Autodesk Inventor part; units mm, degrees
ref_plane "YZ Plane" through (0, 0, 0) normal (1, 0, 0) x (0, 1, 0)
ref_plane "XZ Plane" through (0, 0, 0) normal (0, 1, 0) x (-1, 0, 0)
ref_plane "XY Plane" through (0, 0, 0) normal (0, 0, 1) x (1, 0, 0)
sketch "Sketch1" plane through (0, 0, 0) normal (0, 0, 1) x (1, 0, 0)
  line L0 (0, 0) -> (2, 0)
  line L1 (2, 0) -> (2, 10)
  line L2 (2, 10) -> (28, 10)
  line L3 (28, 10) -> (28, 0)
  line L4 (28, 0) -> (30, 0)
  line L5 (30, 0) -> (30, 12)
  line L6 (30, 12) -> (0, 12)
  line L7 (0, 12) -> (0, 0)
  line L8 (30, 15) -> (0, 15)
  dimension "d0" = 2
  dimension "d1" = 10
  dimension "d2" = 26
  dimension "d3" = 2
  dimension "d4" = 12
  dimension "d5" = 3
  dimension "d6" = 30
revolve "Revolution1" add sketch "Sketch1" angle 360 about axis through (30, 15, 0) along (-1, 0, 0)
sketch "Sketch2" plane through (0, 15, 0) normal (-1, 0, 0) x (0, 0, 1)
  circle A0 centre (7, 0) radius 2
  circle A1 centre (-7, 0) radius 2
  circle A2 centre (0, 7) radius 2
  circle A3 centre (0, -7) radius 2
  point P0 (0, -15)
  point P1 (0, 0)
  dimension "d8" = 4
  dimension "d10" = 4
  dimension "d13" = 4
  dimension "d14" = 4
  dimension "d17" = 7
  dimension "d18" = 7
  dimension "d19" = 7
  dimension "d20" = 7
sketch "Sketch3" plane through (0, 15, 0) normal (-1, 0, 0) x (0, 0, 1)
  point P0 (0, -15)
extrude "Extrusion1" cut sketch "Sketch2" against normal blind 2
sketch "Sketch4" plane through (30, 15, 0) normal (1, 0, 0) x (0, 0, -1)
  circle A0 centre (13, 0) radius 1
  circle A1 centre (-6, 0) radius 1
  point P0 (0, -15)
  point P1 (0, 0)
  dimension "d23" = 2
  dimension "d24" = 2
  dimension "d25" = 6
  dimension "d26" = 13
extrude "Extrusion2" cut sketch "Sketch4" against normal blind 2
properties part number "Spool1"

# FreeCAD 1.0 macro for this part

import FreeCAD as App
import Part
import Sketcher

V = App.Vector
Q = App.Units.Quantity

doc = App.newDocument("Part")
body = doc.addObject("PartDesign::Body", "Body")

sketch1 = body.newObject("Sketcher::SketchObject", "Sketch")
sketch1.AttachmentSupport = (doc.getObject("XY_Plane"), [""])
sketch1.MapMode = "FlatFace"
sketch1.addGeometry(Part.LineSegment(V(0, 12, 0), V(0, 0, 0)), False)
sketch1.addGeometry(Part.LineSegment(V(0, 0, 0), V(2, 0, 0)), False)
sketch1.addGeometry(Part.LineSegment(V(2, 0, 0), V(2, 10, 0)), False)
sketch1.addGeometry(Part.LineSegment(V(2, 10, 0), V(28, 10, 0)), False)
sketch1.addGeometry(Part.LineSegment(V(28, 10, 0), V(28, 0, 0)), False)
sketch1.addGeometry(Part.LineSegment(V(28, 0, 0), V(30, 0, 0)), False)
sketch1.addGeometry(Part.LineSegment(V(30, 0, 0), V(30, 12, 0)), False)
sketch1.addGeometry(Part.LineSegment(V(30, 12, 0), V(0, 12, 0)), False)
sketch1.addGeometry(Part.LineSegment(V(30, 15, 0), V(0, 15, 0)), True)
sketch1.addConstraint(Sketcher.Constraint("Coincident", 0, 2, 1, 1))
sketch1.addConstraint(Sketcher.Constraint("Coincident", 1, 2, 2, 1))
sketch1.addConstraint(Sketcher.Constraint("Coincident", 2, 2, 3, 1))
sketch1.addConstraint(Sketcher.Constraint("Coincident", 3, 2, 4, 1))
sketch1.addConstraint(Sketcher.Constraint("Coincident", 4, 2, 5, 1))
sketch1.addConstraint(Sketcher.Constraint("Coincident", 5, 2, 6, 1))
sketch1.addConstraint(Sketcher.Constraint("Coincident", 6, 2, 7, 1))
sketch1.addConstraint(Sketcher.Constraint("Coincident", 7, 2, 0, 1))
sketch1.addConstraint(Sketcher.Constraint("Vertical", 0))
sketch1.addConstraint(Sketcher.Constraint("Horizontal", 1))
sketch1.addConstraint(Sketcher.Constraint("Vertical", 2))
sketch1.addConstraint(Sketcher.Constraint("Horizontal", 3))
sketch1.addConstraint(Sketcher.Constraint("Vertical", 4))
sketch1.addConstraint(Sketcher.Constraint("Horizontal", 5))
sketch1.addConstraint(Sketcher.Constraint("Vertical", 6))
sketch1.addConstraint(Sketcher.Constraint("Horizontal", 7))
sketch1.addConstraint(Sketcher.Constraint("Horizontal", 8))
sketch1.addConstraint(Sketcher.Constraint("Coincident", 0, 2, -1, 1))
sketch1.addConstraint(Sketcher.Constraint("PointOnObject", 4, 2, -1))
sketch1.addConstraint(Sketcher.Constraint("PointOnObject", 8, 2, -2))
sketch1.addConstraint(Sketcher.Constraint("Vertical", 6, 2, 8, 1))
sketch1.addConstraint(Sketcher.Constraint("Equal", 1, 5))
sketch1.addConstraint(Sketcher.Constraint("DistanceX", 1, 1, 1, 2, Q("2 mm")))
sketch1.addConstraint(Sketcher.Constraint("DistanceX", 3, 1, 3, 2, Q("26 mm")))
sketch1.addConstraint(Sketcher.Constraint("DistanceY", 0, 2, 0, 1, Q("12 mm")))
sketch1.addConstraint(Sketcher.Constraint("DistanceY", 2, 1, 2, 2, Q("10 mm")))
sketch1.addConstraint(Sketcher.Constraint("DistanceY", 6, 2, 8, 1, Q("3 mm")))
revolution = body.newObject("PartDesign::Revolution", "Revolution")
revolution.Profile = sketch1
revolution.ReferenceAxis = (sketch1, ["Axis0"])
revolution.Angle = 360

sketch2 = body.newObject("Sketcher::SketchObject", "Sketch001")
sketch2.AttachmentSupport = (doc.getObject("YZ_Plane"), [""])
sketch2.MapMode = "FlatFace"
sketch2.addGeometry(Part.Circle(V(15, 7, 0), V(0, 0, 1), 2), False)
sketch2.addGeometry(Part.Circle(V(15, -7, 0), V(0, 0, 1), 2), False)
sketch2.addGeometry(Part.Circle(V(22, 0, 0), V(0, 0, 1), 2), False)
sketch2.addGeometry(Part.Circle(V(8, 0, 0), V(0, 0, 1), 2), False)
sketch2.addConstraint(Sketcher.Constraint("Equal", 0, 1))
sketch2.addConstraint(Sketcher.Constraint("Equal", 1, 2))
sketch2.addConstraint(Sketcher.Constraint("Equal", 2, 3))
sketch2.addConstraint(Sketcher.Constraint("Symmetric", 0, 3, 1, 3, -1))
sketch2.addConstraint(Sketcher.Constraint("PointOnObject", 2, 3, -1))
sketch2.addConstraint(Sketcher.Constraint("PointOnObject", 3, 3, -1))
sketch2.addConstraint(Sketcher.Constraint("Diameter", 0, Q("4 mm")))
sketch2.addConstraint(Sketcher.Constraint("DistanceY", -1, 1, 0, 3, Q("7 mm")))
sketch2.addConstraint(Sketcher.Constraint("DistanceX", 0, 3, 2, 3, Q("7 mm")))
sketch2.addConstraint(Sketcher.Constraint("DistanceX", 3, 3, 0, 3, Q("7 mm")))
sketch2.addConstraint(Sketcher.Constraint("DistanceX", -1, 1, 0, 3, Q("15 mm")))
pocket1 = body.newObject("PartDesign::Pocket", "Pocket")
pocket1.Profile = sketch2
pocket1.Length = 2
pocket1.Reversed = True

sketch3 = body.newObject("Sketcher::SketchObject", "Sketch002")
sketch3.AttachmentSupport = (doc.getObject("YZ_Plane"), [""])
sketch3.MapMode = "FlatFace"
sketch3.AttachmentOffset = App.Placement(V(0, 0, 30), App.Rotation())
sketch3.addGeometry(Part.Circle(V(15, -13, 0), V(0, 0, 1), 1), False)
sketch3.addGeometry(Part.Circle(V(15, 6, 0), V(0, 0, 1), 1), False)
sketch3.addConstraint(Sketcher.Constraint("Equal", 0, 1))
sketch3.addConstraint(Sketcher.Constraint("Vertical", 0, 3, 1, 3))
sketch3.addConstraint(Sketcher.Constraint("Diameter", 0, Q("2 mm")))
sketch3.addConstraint(Sketcher.Constraint("DistanceY", 0, 3, -1, 1, Q("13 mm")))
sketch3.addConstraint(Sketcher.Constraint("DistanceY", -1, 1, 1, 3, Q("6 mm")))
sketch3.addConstraint(Sketcher.Constraint("DistanceX", -1, 1, 0, 3, Q("15 mm")))
pocket2 = body.newObject("PartDesign::Pocket", "Pocket001")
pocket2.Profile = sketch3
pocket2.Length = 2

doc.recompute()
